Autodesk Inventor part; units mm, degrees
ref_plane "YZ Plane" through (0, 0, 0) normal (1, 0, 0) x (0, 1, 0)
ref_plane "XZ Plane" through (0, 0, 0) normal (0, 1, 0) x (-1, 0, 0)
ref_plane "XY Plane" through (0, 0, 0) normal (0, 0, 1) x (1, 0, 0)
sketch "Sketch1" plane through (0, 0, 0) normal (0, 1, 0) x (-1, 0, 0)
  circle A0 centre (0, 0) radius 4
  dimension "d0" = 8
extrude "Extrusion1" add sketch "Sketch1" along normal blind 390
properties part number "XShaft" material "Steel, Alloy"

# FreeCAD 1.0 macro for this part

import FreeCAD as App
import Part
import Sketcher

doc = App.newDocument("Part")
body = doc.addObject("PartDesign::Body", "Body")

sketch1 = body.newObject("Sketcher::SketchObject", "Sketch")
sketch1.AttachmentSupport = (doc.getObject("XZ_Plane"), [""])
sketch1.MapMode = "FlatFace"
sketch1.addGeometry(Part.Circle(App.Vector(0, 0, 0), App.Vector(0, 0, 1), 4), False)
sketch1.addConstraint(Sketcher.Constraint("Coincident", 0, 3, -1, 1))
sketch1.addConstraint(Sketcher.Constraint("Diameter", 0, 8.0))
pad1 = body.newObject("PartDesign::Pad", "Pad")
pad1.Profile = sketch1
pad1.Length = 390
pad1.Reversed = True

doc.recompute()
